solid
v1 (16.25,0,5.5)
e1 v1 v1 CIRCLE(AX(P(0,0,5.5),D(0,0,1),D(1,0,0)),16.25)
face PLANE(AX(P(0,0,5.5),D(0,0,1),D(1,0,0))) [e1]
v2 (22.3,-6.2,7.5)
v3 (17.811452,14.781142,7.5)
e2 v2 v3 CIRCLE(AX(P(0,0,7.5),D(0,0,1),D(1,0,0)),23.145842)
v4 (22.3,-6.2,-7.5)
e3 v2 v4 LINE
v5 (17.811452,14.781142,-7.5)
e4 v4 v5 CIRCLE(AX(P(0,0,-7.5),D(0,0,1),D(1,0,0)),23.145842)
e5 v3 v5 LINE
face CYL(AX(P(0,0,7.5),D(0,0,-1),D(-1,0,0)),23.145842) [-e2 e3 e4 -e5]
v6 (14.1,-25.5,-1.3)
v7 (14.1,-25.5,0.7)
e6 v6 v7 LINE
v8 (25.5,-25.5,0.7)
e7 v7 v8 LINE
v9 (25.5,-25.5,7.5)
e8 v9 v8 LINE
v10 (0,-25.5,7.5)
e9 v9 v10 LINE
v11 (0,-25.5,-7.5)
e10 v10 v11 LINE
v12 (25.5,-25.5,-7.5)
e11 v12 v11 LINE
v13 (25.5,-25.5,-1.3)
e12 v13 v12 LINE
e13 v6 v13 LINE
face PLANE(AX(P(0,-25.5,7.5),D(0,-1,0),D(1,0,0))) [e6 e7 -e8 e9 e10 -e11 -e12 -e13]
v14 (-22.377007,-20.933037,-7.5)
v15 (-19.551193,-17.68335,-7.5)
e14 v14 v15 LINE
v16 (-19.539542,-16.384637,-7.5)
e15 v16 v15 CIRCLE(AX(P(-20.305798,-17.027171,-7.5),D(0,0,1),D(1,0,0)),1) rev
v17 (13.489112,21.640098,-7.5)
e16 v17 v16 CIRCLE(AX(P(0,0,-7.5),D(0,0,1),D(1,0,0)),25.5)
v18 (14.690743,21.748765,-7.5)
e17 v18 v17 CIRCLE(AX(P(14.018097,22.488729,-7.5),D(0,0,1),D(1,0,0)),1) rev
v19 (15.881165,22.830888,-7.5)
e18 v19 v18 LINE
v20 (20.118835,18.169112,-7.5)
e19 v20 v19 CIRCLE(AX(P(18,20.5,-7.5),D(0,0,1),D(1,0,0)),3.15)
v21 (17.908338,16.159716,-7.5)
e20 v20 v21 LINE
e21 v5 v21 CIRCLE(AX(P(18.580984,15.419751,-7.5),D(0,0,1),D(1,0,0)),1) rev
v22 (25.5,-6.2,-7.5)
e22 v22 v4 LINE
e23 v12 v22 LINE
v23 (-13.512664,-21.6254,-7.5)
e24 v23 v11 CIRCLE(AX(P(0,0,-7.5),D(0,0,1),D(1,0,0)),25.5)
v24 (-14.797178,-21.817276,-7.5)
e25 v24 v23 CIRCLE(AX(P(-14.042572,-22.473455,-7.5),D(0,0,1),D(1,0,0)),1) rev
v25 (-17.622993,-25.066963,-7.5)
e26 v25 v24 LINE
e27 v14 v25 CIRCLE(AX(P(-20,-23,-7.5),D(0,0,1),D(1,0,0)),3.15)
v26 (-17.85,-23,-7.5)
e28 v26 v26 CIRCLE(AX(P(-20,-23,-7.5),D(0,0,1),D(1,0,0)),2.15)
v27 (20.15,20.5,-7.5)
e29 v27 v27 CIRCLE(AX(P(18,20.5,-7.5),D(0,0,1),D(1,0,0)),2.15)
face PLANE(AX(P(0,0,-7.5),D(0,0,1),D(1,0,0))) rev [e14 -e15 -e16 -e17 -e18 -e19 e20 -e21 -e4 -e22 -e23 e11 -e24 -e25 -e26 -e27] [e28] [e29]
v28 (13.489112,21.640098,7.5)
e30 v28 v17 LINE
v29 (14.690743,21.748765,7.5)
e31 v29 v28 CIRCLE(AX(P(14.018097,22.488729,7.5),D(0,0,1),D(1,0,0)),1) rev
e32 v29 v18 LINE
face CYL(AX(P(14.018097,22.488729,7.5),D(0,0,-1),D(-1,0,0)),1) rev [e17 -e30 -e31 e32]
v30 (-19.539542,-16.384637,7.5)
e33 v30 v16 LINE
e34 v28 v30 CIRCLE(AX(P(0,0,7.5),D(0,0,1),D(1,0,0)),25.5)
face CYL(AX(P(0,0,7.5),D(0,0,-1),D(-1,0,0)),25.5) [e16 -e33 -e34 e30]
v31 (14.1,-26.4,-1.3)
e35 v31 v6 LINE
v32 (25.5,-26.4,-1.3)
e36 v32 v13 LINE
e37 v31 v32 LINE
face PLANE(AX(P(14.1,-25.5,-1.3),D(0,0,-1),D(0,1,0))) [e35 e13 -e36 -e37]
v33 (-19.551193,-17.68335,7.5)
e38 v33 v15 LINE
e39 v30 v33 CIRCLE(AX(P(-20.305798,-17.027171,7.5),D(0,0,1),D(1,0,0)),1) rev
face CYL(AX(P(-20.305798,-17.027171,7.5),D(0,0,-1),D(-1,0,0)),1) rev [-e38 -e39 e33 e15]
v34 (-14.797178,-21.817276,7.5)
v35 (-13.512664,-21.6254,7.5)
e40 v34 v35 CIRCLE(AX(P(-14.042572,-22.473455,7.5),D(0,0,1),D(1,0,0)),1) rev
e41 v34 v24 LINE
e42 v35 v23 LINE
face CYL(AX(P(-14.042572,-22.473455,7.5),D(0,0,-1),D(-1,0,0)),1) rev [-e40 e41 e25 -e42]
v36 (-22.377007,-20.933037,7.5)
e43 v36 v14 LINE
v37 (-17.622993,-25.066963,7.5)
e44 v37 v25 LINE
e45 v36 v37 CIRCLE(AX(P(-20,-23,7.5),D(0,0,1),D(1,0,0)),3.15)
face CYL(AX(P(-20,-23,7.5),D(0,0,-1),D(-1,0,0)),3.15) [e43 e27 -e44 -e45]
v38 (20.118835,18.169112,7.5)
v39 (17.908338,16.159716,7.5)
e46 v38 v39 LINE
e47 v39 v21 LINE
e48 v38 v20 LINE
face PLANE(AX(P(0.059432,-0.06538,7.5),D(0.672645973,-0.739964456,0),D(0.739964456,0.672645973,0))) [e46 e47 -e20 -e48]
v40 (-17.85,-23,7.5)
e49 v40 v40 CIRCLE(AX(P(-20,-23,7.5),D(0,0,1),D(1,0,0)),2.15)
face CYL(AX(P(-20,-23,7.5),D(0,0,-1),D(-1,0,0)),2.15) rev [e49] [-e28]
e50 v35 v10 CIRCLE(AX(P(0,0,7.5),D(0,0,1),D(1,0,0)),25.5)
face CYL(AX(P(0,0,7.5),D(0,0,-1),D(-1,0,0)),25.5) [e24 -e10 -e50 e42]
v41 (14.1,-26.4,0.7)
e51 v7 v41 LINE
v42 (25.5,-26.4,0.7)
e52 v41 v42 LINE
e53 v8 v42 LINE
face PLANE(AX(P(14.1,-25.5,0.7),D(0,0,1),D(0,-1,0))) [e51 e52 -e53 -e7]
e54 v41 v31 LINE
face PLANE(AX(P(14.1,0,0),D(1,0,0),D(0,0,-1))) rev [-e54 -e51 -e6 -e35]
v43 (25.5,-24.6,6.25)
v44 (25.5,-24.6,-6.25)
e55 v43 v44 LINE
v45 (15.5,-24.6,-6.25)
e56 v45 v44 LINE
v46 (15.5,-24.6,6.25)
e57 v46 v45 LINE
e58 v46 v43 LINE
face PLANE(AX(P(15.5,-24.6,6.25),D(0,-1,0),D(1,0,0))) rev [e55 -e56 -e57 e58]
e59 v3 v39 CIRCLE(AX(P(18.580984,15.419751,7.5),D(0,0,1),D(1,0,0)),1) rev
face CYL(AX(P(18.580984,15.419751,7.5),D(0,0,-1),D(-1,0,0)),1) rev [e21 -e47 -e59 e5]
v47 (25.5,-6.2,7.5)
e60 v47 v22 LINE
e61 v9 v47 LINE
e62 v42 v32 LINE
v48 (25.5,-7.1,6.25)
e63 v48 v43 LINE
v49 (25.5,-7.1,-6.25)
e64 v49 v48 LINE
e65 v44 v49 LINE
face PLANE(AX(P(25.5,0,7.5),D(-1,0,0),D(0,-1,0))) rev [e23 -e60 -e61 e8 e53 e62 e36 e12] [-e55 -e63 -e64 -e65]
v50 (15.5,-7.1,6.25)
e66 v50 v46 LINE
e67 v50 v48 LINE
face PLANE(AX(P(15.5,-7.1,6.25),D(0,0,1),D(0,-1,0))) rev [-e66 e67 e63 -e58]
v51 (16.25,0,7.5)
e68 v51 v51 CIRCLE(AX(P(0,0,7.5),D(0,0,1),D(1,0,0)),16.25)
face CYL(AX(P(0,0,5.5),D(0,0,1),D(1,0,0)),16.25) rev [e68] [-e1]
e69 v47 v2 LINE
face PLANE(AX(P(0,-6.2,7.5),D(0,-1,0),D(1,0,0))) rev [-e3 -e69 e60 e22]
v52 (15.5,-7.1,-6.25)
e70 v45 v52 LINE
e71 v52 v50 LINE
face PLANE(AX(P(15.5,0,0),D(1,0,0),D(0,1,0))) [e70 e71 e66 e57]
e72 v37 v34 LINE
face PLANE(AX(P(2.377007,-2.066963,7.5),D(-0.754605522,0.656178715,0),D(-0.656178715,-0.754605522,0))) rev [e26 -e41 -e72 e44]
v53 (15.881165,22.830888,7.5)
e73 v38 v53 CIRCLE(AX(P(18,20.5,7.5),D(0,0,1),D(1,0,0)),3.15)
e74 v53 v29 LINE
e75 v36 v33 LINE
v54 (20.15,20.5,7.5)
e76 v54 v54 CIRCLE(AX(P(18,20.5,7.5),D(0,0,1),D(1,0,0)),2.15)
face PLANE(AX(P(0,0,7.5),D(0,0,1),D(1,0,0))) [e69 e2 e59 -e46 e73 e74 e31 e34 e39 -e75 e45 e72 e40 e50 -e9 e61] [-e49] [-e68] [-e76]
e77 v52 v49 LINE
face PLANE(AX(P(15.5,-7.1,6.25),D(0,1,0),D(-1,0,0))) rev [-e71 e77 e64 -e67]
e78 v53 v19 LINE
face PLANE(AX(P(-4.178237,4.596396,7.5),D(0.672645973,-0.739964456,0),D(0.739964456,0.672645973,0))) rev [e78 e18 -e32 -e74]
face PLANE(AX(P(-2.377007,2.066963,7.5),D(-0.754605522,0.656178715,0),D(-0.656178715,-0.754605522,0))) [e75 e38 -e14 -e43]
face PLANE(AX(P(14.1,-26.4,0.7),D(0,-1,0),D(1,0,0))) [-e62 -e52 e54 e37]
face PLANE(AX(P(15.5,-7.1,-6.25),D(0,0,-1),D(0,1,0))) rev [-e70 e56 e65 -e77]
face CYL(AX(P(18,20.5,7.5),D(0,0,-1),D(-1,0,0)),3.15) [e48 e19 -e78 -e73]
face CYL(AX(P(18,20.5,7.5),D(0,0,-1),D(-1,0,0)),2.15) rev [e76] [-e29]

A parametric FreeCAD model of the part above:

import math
import FreeCAD as App
import Part
import Sketcher

V = App.Vector
Q = App.Units.Quantity

doc = App.newDocument("Part")
body = doc.addObject("PartDesign::Body", "Body")

# Sketch on XY plane
sketch1 = doc.addObject("Sketcher::SketchObject", "Sketch")
body.addObject(sketch1)
sketch1.AttachmentSupport = (doc.XY_Plane, [""])
sketch1.MapMode = "FlatFace"
sketch1.addGeometry(Part.ArcOfCircle(Part.Circle(V(0, 0, 0), V(0, 0, 1), 25.5), math.radians(-121.999265), math.radians(-90)), False)
sketch1.addGeometry(Part.LineSegment(V(0, -25.5, 0), V(25.5, -25.5, 0)), False)
sketch1.addGeometry(Part.LineSegment(V(25.5, -25.5, 0), V(25.5, -6.2, 0)), False)
sketch1.addGeometry(Part.LineSegment(V(25.5, -6.2, 0), V(22.3, -6.2, 0)), False)
sketch1.addGeometry(Part.ArcOfCircle(Part.Circle(V(0, 0, 0), V(0, 0, 1), 23.145842), math.radians(-15.537362), math.radians(39.688172)), False)
sketch1.addGeometry(Part.ArcOfCircle(Part.Circle(V(18.580984, 15.419751, 0), V(0, 0, 1), 1), math.radians(132.271612), math.radians(219.688172)), False)
sketch1.addGeometry(Part.LineSegment(V(17.908338, 16.159716, 0), V(18.928413, 17.086989, 0)), False)
sketch1.addGeometry(Part.LineSegment(V(18.928413, 17.086989, 0), V(20.118835, 18.169112, 0)), False)
sketch1.addGeometry(Part.ArcOfCircle(Part.Circle(V(18, 20.5, 0), V(0, 0, 1), 3.15), math.radians(-47.728388), math.radians(132.271612)), False)
sketch1.addGeometry(Part.LineSegment(V(15.881165, 22.830888, 0), V(14.690743, 21.748765, 0)), False)
sketch1.addGeometry(Part.ArcOfCircle(Part.Circle(V(14.018097, 22.488729, 0), V(0, 0, 1), 1), math.radians(-121.936887), math.radians(-47.728388)), False)
sketch1.addGeometry(Part.ArcOfCircle(Part.Circle(V(0, 0, 0), V(0, 0, 1), 25.5), math.radians(58.063113), math.radians(219.981091)), False)
sketch1.addGeometry(Part.ArcOfCircle(Part.Circle(V(-20.305798, -17.027171, 0), V(0, 0, 1), 1), math.radians(-41.009087), math.radians(39.981091)), False)
sketch1.addGeometry(Part.LineSegment(V(-19.551193, -17.68335, 0), V(-22.377007, -20.933037, 0)), False)
sketch1.addGeometry(Part.ArcOfCircle(Part.Circle(V(-20, -23, 0), V(0, 0, 1), 3.15), math.radians(138.990913), math.radians(318.990913)), False)
sketch1.addGeometry(Part.LineSegment(V(-17.622993, -25.066963, 0), V(-14.797178, -21.817276, 0)), False)
sketch1.addGeometry(Part.ArcOfCircle(Part.Circle(V(-14.042572, -22.473455, 0), V(0, 0, 1), 1), math.radians(58.000735), math.radians(138.990913)), False)
sketch1.addGeometry(Part.Circle(V(18, 20.5, 0), V(0, 0, 1), 2.15), False)
sketch1.addGeometry(Part.Circle(V(-20, -23, 0), V(0, 0, 1), 2.15), False)
sketch1.addConstraint(Sketcher.Constraint("Tangent", 0, 2, 1, 1))
sketch1.addConstraint(Sketcher.Constraint("Coincident", 1, 2, 2, 1))
sketch1.addConstraint(Sketcher.Constraint("Coincident", 2, 2, 3, 1))
sketch1.addConstraint(Sketcher.Constraint("Coincident", 3, 2, 4, 1))
sketch1.addConstraint(Sketcher.Constraint("Tangent", 4, 2, 5, 2))
sketch1.addConstraint(Sketcher.Constraint("Tangent", 5, 1, 6, 1))
sketch1.addConstraint(Sketcher.Constraint("Coincident", 6, 2, 7, 1))
sketch1.addConstraint(Sketcher.Constraint("Tangent", 7, 2, 8, 1))
sketch1.addConstraint(Sketcher.Constraint("Tangent", 8, 2, 9, 1))
sketch1.addConstraint(Sketcher.Constraint("Tangent", 9, 2, 10, 2))
sketch1.addConstraint(Sketcher.Constraint("Tangent", 10, 1, 11, 1))
sketch1.addConstraint(Sketcher.Constraint("Tangent", 11, 2, 12, 2))
sketch1.addConstraint(Sketcher.Constraint("Tangent", 12, 1, 13, 1))
sketch1.addConstraint(Sketcher.Constraint("Tangent", 13, 2, 14, 1))
sketch1.addConstraint(Sketcher.Constraint("Tangent", 14, 2, 15, 1))
sketch1.addConstraint(Sketcher.Constraint("Tangent", 15, 2, 16, 2))
sketch1.addConstraint(Sketcher.Constraint("Tangent", 16, 1, 0, 1))
sketch1.addConstraint(Sketcher.Constraint("Horizontal", 1))
sketch1.addConstraint(Sketcher.Constraint("Vertical", 2))
sketch1.addConstraint(Sketcher.Constraint("Horizontal", 3))
sketch1.addConstraint(Sketcher.Constraint("Coincident", 0, 3, -1, 1))
sketch1.addConstraint(Sketcher.Constraint("Coincident", 4, 3, -1, 1))
sketch1.addConstraint(Sketcher.Constraint("Coincident", 11, 3, -1, 1))
sketch1.addConstraint(Sketcher.Constraint("Coincident", 17, 3, 8, 3))
sketch1.addConstraint(Sketcher.Constraint("Coincident", 18, 3, 14, 3))
sketch1.addConstraint(Sketcher.Constraint("Equal", 5, 10))
sketch1.addConstraint(Sketcher.Constraint("Equal", 0, 11))
sketch1.addConstraint(Sketcher.Constraint("Equal", 10, 12))
sketch1.addConstraint(Sketcher.Constraint("Equal", 8, 14))
sketch1.addConstraint(Sketcher.Constraint("Equal", 12, 16))
sketch1.addConstraint(Sketcher.Constraint("Equal", 17, 18))
sketch1.addConstraint(Sketcher.Constraint("Parallel", 6, 7))
sketch1.addConstraint(Sketcher.Constraint("Parallel", 7, 9))
sketch1.addConstraint(Sketcher.Constraint("Parallel", 13, 15))
sketch1.addConstraint(Sketcher.Constraint("Equal", 7, 9))
sketch1.addConstraint(Sketcher.Constraint("Equal", 13, 15))
sketch1.addConstraint(Sketcher.Constraint("Radius", 5, Q("1 mm")))
sketch1.addConstraint(Sketcher.Constraint("Diameter", 17, Q("4.3 mm")))
sketch1.addConstraint(Sketcher.Constraint("Radius", 0, Q("25.5 mm")))
sketch1.addConstraint(Sketcher.Constraint("Radius", 8, Q("3.15 mm")))
sketch1.addConstraint(Sketcher.Constraint("DistanceX", 1, 1, 1, 2, Q("25.5 mm")))
sketch1.addConstraint(Sketcher.Constraint("DistanceX", 3, 2, 3, 1, Q("3.2 mm")))
sketch1.addConstraint(Sketcher.Constraint("DistanceY", 2, 1, 2, 2, Q("19.3 mm")))
sketch1.addConstraint(Sketcher.Constraint("DistanceX", -1, 1, 8, 3, Q("18 mm")))
sketch1.addConstraint(Sketcher.Constraint("DistanceX", 14, 3, -1, 1, Q("20 mm")))
sketch1.addConstraint(Sketcher.Constraint("DistanceY", 14, 3, -1, 1, Q("23 mm")))
sketch1.addConstraint(Sketcher.Constraint("DistanceY", -1, 1, 8, 3, Q("20.5 mm")))
sketch1.addConstraint(Sketcher.Constraint("DistanceY", -1, 1, 10, 1, Q("21.640098 mm")))
pad1 = doc.addObject("PartDesign::Pad", "Pad")
body.addObject(pad1)
pad1.Profile = sketch1
pad1.Length = 15
pad1.Midplane = True

# Sketch on YZ plane
sketch2 = doc.addObject("Sketcher::SketchObject", "Sketch001")
body.addObject(sketch2)
sketch2.AttachmentSupport = (doc.YZ_Plane, [""])
sketch2.MapMode = "FlatFace"
sketch2.AttachmentOffset = App.Placement(V(0, 0, 25.5), App.Rotation())
sketch2.addGeometry(Part.LineSegment(V(-25.5, 0.7, 0), V(-26.4, 0.7, 0)), False)
sketch2.addGeometry(Part.LineSegment(V(-26.4, 0.7, 0), V(-26.4, -1.3, 0)), False)
sketch2.addGeometry(Part.LineSegment(V(-26.4, -1.3, 0), V(-25.5, -1.3, 0)), False)
sketch2.addGeometry(Part.LineSegment(V(-25.5, -1.3, 0), V(-25.5, 0.7, 0)), False)
sketch2.addConstraint(Sketcher.Constraint("Coincident", 0, 2, 1, 1))
sketch2.addConstraint(Sketcher.Constraint("Coincident", 1, 2, 2, 1))
sketch2.addConstraint(Sketcher.Constraint("Coincident", 2, 2, 3, 1))
sketch2.addConstraint(Sketcher.Constraint("Coincident", 3, 2, 0, 1))
sketch2.addConstraint(Sketcher.Constraint("Horizontal", 0))
sketch2.addConstraint(Sketcher.Constraint("Vertical", 1))
sketch2.addConstraint(Sketcher.Constraint("Horizontal", 2))
sketch2.addConstraint(Sketcher.Constraint("Vertical", 3))
sketch2.addConstraint(Sketcher.Constraint("DistanceY", 1, 2, 1, 1, Q("2 mm")))
sketch2.addConstraint(Sketcher.Constraint("DistanceX", 0, 2, 0, 1, Q("0.9 mm")))
sketch2.addConstraint(Sketcher.Constraint("DistanceX", 0, 2, -1, 1, Q("26.4 mm")))
sketch2.addConstraint(Sketcher.Constraint("DistanceY", -1, 1, 0, 2, Q("0.7 mm")))
pad2 = doc.addObject("PartDesign::Pad", "Pad001")
body.addObject(pad2)
pad2.Profile = sketch2
pad2.Length = 11.4
pad2.Reversed = True

# Sketch on XY plane
sketch3 = doc.addObject("Sketcher::SketchObject", "Sketch002")
body.addObject(sketch3)
sketch3.AttachmentSupport = (doc.XY_Plane, [""])
sketch3.MapMode = "FlatFace"
sketch3.AttachmentOffset = App.Placement(V(0, 0, 7.5), App.Rotation())
sketch3.addGeometry(Part.Circle(V(0, 0, 0), V(0, 0, 1), 16.25), False)
sketch3.addConstraint(Sketcher.Constraint("Coincident", 0, 3, -1, 1))
sketch3.addConstraint(Sketcher.Constraint("Diameter", 0, Q("32.5 mm")))
pocket1 = doc.addObject("PartDesign::Pocket", "Pocket")
body.addObject(pocket1)
pocket1.Profile = sketch3
pocket1.Length = 2

# Sketch on YZ plane
sketch4 = doc.addObject("Sketcher::SketchObject", "Sketch003")
body.addObject(sketch4)
sketch4.AttachmentSupport = (doc.YZ_Plane, [""])
sketch4.MapMode = "FlatFace"
sketch4.AttachmentOffset = App.Placement(V(0, 0, 25.5), App.Rotation())
sketch4.addGeometry(Part.LineSegment(V(-7.1, 6.25, 0), V(-24.6, 6.25, 0)), False)
sketch4.addGeometry(Part.LineSegment(V(-24.6, 6.25, 0), V(-24.6, -6.25, 0)), False)
sketch4.addGeometry(Part.LineSegment(V(-24.6, -6.25, 0), V(-7.1, -6.25, 0)), False)
sketch4.addGeometry(Part.LineSegment(V(-7.1, -6.25, 0), V(-7.1, 6.25, 0)), False)
sketch4.addConstraint(Sketcher.Constraint("Coincident", 0, 2, 1, 1))
sketch4.addConstraint(Sketcher.Constraint("Coincident", 1, 2, 2, 1))
sketch4.addConstraint(Sketcher.Constraint("Coincident", 2, 2, 3, 1))
sketch4.addConstraint(Sketcher.Constraint("Coincident", 3, 2, 0, 1))
sketch4.addConstraint(Sketcher.Constraint("Horizontal", 0))
sketch4.addConstraint(Sketcher.Constraint("Vertical", 1))
sketch4.addConstraint(Sketcher.Constraint("Horizontal", 2))
sketch4.addConstraint(Sketcher.Constraint("Vertical", 3))
sketch4.addConstraint(Sketcher.Constraint("DistanceX", 0, 2, 0, 1, Q("17.5 mm")))
sketch4.addConstraint(Sketcher.Constraint("DistanceY", 1, 2, 1, 1, Q("12.5 mm")))
sketch4.addConstraint(Sketcher.Constraint("DistanceX", 0, 2, -1, 1, Q("24.6 mm")))
sketch4.addConstraint(Sketcher.Constraint("DistanceY", -1, 1, 0, 2, Q("6.25 mm")))
pocket2 = doc.addObject("PartDesign::Pocket", "Pocket001")
body.addObject(pocket2)
pocket2.Profile = sketch4
pocket2.Length = 10

doc.recompute()
